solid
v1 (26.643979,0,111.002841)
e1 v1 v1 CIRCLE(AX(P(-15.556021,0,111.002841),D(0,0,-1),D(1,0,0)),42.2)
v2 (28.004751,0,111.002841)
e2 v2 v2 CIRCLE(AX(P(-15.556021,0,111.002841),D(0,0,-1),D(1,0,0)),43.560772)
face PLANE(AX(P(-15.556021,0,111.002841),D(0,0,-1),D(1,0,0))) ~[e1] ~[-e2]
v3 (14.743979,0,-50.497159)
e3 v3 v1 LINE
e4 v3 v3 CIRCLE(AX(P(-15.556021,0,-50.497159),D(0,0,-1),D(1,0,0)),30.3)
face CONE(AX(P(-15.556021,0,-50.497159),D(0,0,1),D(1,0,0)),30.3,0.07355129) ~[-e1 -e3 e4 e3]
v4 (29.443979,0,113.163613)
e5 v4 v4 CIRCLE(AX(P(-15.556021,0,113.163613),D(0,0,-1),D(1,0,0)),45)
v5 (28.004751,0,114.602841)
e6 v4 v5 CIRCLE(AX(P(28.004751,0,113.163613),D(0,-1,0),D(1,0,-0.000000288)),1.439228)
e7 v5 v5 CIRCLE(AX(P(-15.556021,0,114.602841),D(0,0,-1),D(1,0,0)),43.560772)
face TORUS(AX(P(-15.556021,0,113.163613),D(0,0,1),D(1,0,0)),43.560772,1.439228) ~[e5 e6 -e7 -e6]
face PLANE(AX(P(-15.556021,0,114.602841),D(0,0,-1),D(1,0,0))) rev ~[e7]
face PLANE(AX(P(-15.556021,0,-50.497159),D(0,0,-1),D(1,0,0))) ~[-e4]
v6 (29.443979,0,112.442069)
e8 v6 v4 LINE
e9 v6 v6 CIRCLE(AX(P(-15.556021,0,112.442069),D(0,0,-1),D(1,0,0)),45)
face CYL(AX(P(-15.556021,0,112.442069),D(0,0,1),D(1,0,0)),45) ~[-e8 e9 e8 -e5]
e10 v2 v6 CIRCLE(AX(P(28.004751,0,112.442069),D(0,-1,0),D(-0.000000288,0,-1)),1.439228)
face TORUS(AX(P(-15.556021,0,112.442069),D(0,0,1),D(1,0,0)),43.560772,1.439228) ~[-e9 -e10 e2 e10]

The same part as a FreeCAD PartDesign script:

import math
import FreeCAD as App
import Part
import Sketcher
from FreeCAD import Vector

doc = App.newDocument("Part")
body = doc.addObject("PartDesign::Body", "Body")

sketch1 = body.newObject("Sketcher::SketchObject", "Sketch")
sketch1.AttachmentSupport = (doc.getObject("XZ_Plane"), [""])
sketch1.MapMode = "FlatFace"
sketch1.addGeometry(Part.LineSegment(Vector(14.7, -50.5, 0), Vector(26.6, 111, 0)), False)
sketch1.addGeometry(Part.LineSegment(Vector(26.6, 111, 0), Vector(28, 111, 0)), False)
sketch1.addGeometry(Part.ArcOfCircle(Part.Circle(Vector(28, 112.4, 0), Vector(0, 0, 1), 1.4), math.radians(-90), math.radians(0)), False)
sketch1.addGeometry(Part.LineSegment(Vector(29.4, 112.4, 0), Vector(29.4, 113.2, 0)), False)
sketch1.addGeometry(Part.ArcOfCircle(Part.Circle(Vector(28, 113.2, 0), Vector(0, 0, 1), 1.4), math.radians(0), math.radians(90)), False)
sketch1.addGeometry(Part.LineSegment(Vector(28, 114.6, 0), Vector(-15.6, 114.6, 0)), False)
sketch1.addGeometry(Part.LineSegment(Vector(-15.6, 114.6, 0), Vector(-15.6, -50.5, 0)), False)
sketch1.addGeometry(Part.LineSegment(Vector(-15.6, -50.5, 0), Vector(14.7, -50.5, 0)), False)
sketch1.addGeometry(Part.LineSegment(Vector(-15.6, 114.6, 0), Vector(-15.6, -50.5, 0)), True)
sketch1.addConstraint(Sketcher.Constraint("Coincident", 0, 2, 1, 1))
sketch1.addConstraint(Sketcher.Constraint("Tangent", 1, 2, 2, 1))
sketch1.addConstraint(Sketcher.Constraint("Tangent", 2, 2, 3, 1))
sketch1.addConstraint(Sketcher.Constraint("Tangent", 3, 2, 4, 1))
sketch1.addConstraint(Sketcher.Constraint("Tangent", 4, 2, 5, 1))
sketch1.addConstraint(Sketcher.Constraint("Coincident", 5, 2, 6, 1))
sketch1.addConstraint(Sketcher.Constraint("Coincident", 6, 2, 7, 1))
sketch1.addConstraint(Sketcher.Constraint("Coincident", 7, 2, 0, 1))
sketch1.addConstraint(Sketcher.Constraint("Horizontal", 1))
sketch1.addConstraint(Sketcher.Constraint("Vertical", 3))
sketch1.addConstraint(Sketcher.Constraint("Horizontal", 5))
sketch1.addConstraint(Sketcher.Constraint("Vertical", 6))
sketch1.addConstraint(Sketcher.Constraint("Horizontal", 7))
sketch1.addConstraint(Sketcher.Constraint("Vertical", 8))
sketch1.addConstraint(Sketcher.Constraint("Coincident", 8, 1, 5, 2))
sketch1.addConstraint(Sketcher.Constraint("Equal", 2, 4))
sketch1.addConstraint(Sketcher.Constraint("Horizontal", 7, 2, 8, 2))
sketch1.addConstraint(Sketcher.Constraint("DistanceX", 7, 1, 7, 2, 30.3))
sketch1.addConstraint(Sketcher.Constraint("DistanceY", 6, 2, 6, 1, 165.1))
sketch1.addConstraint(Sketcher.Constraint("DistanceX", 6, 2, 2, 2, 45.0))
sketch1.addConstraint(Sketcher.Constraint("DistanceX", 0, 2, 2, 2, 2.8))
sketch1.addConstraint(Sketcher.Constraint("DistanceY", 1, 2, 4, 2, 3.6))
sketch1.addConstraint(Sketcher.Constraint("Radius", 2, 1.439228))
sketch1.addConstraint(Sketcher.Constraint("DistanceX", -1, 1, 2, 3, 28.004751))
sketch1.addConstraint(Sketcher.Constraint("DistanceY", -1, 1, 2, 3, 112.442069))
revolution = body.newObject("PartDesign::Revolution", "Revolution")
revolution.Profile = sketch1
revolution.ReferenceAxis = (sketch1, ["Axis0"])
revolution.Angle = 360

doc.recompute()
